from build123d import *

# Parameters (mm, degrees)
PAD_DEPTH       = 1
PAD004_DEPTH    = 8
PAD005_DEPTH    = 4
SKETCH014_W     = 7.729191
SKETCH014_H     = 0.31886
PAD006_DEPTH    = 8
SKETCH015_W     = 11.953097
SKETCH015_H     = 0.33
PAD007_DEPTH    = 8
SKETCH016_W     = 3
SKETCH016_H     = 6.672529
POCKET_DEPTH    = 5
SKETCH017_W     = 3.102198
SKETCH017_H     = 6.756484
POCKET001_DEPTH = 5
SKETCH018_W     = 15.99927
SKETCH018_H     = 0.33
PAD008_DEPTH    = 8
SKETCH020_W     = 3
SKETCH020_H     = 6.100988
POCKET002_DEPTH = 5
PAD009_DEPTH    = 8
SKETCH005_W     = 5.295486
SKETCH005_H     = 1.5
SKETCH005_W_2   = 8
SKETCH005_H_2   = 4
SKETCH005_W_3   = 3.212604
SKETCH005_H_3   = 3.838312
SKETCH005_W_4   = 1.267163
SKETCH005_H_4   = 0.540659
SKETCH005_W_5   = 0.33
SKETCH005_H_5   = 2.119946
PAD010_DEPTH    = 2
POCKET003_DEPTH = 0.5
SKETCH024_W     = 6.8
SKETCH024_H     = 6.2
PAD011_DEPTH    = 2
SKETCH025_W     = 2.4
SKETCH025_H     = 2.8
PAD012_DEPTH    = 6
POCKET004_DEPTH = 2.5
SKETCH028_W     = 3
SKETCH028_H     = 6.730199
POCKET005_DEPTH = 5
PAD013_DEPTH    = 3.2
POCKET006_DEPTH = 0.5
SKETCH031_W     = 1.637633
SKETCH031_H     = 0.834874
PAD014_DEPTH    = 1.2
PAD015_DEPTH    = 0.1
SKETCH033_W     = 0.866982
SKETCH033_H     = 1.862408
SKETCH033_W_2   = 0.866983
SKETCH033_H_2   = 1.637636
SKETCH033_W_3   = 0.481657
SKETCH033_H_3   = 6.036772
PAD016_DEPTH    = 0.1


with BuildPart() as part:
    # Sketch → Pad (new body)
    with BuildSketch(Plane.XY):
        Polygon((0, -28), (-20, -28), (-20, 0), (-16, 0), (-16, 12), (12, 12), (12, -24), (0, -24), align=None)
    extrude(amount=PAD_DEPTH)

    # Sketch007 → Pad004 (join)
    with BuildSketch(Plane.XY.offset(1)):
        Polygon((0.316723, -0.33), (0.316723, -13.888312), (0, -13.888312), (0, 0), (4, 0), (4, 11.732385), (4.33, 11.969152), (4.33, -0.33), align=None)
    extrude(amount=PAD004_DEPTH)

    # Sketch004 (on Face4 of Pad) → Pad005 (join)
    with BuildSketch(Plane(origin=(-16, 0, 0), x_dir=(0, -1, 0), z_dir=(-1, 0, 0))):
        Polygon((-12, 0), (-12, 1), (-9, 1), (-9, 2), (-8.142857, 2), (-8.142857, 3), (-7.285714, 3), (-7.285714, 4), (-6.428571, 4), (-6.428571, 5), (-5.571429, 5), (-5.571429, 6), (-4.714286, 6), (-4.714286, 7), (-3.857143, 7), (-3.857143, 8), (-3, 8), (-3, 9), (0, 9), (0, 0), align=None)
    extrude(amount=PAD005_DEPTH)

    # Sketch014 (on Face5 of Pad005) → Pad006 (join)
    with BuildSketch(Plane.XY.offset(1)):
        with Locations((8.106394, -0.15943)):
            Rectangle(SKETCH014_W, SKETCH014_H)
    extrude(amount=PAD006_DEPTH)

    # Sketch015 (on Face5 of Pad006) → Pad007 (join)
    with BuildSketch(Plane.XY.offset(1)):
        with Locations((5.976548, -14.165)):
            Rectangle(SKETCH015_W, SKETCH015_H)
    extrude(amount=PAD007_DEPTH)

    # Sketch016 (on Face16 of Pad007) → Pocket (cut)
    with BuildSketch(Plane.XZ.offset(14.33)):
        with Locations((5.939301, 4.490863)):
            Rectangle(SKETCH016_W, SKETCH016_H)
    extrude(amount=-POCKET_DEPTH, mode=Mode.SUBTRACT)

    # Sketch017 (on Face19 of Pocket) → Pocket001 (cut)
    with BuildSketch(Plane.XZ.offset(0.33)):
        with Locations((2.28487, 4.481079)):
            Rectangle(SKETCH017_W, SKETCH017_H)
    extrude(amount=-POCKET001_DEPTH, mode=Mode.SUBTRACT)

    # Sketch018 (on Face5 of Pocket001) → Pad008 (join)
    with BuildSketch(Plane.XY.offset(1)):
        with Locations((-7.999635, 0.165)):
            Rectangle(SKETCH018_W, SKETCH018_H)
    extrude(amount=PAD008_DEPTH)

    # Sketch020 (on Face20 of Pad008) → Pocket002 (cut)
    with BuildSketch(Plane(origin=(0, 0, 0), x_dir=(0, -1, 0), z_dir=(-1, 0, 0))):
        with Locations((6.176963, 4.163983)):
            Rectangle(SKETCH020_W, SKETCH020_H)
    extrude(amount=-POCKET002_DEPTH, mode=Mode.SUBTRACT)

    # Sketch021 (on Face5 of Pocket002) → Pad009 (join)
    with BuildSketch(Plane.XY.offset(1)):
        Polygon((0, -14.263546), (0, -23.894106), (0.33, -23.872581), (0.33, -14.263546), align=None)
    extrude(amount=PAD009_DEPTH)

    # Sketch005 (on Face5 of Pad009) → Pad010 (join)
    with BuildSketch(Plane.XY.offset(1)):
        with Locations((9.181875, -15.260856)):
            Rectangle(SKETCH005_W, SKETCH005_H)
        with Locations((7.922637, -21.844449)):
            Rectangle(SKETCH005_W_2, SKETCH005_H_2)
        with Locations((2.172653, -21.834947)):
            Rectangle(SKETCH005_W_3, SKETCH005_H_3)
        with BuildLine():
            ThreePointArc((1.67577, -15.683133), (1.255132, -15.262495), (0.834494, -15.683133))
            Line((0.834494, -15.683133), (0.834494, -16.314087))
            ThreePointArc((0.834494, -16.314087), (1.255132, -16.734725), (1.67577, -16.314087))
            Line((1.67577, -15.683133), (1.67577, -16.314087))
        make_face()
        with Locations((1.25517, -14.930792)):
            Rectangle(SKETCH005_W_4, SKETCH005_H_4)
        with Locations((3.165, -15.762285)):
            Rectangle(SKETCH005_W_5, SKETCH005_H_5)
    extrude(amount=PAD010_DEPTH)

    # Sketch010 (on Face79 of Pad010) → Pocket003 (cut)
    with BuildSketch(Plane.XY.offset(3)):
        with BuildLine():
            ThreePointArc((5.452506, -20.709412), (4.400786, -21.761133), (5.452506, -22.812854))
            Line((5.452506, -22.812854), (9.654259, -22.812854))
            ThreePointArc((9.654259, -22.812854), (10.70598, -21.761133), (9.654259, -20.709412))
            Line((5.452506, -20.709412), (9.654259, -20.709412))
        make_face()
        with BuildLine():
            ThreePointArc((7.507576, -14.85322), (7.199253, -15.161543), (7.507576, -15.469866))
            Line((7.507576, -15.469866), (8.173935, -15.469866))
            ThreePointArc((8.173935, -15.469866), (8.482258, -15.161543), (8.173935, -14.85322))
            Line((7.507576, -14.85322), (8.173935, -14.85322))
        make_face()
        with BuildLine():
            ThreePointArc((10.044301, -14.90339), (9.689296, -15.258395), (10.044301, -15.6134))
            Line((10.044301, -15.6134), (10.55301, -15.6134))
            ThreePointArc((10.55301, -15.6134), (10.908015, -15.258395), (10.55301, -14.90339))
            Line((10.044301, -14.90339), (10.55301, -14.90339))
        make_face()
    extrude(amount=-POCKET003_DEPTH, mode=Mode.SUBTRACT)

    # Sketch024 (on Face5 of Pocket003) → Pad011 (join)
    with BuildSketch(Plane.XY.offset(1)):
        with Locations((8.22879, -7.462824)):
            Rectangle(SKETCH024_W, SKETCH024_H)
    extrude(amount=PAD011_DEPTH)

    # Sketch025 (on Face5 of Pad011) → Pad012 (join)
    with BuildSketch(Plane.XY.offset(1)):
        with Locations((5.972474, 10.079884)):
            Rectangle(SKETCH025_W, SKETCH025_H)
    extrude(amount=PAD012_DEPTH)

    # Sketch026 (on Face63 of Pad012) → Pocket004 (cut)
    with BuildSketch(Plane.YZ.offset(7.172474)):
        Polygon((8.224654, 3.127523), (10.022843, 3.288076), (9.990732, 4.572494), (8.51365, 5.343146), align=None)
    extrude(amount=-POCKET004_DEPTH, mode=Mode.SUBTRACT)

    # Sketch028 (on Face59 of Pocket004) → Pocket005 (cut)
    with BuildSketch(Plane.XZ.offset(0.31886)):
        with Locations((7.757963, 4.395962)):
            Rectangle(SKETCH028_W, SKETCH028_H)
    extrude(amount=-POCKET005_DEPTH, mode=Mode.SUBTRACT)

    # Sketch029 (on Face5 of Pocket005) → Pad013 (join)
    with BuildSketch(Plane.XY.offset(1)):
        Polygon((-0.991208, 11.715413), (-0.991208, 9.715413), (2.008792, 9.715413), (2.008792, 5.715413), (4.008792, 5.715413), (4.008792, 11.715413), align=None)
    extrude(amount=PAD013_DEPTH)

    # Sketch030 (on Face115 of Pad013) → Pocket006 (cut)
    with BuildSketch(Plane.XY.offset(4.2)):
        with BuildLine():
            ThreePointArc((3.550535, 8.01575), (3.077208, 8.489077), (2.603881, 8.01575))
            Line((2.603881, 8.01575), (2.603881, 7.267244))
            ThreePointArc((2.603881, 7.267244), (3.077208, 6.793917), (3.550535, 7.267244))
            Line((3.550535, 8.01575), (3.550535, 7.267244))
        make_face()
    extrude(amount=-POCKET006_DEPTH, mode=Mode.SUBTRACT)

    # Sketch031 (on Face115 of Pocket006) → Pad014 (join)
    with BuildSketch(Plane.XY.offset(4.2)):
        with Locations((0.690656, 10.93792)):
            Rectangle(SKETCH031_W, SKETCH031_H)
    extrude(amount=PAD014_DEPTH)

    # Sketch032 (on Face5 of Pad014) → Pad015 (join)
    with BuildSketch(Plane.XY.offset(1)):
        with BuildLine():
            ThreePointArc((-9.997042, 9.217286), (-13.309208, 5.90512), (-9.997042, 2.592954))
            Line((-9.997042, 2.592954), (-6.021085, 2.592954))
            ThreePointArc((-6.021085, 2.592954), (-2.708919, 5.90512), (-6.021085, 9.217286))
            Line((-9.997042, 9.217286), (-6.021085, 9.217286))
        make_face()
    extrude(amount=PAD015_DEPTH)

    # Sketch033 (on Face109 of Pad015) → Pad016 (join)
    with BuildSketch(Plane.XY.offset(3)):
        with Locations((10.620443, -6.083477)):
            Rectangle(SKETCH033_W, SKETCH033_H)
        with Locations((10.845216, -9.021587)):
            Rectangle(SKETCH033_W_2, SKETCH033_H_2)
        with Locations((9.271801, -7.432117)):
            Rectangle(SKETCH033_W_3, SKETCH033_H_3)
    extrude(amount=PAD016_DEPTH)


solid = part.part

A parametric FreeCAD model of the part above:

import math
import FreeCAD as App
import Part
import Sketcher

V = App.Vector


def add_polygon(sketch, points):
    """Adds a closed chain of lines whose ends are joined by coincident constraints."""
    first, n = sketch.GeometryCount, len(points)
    for a, b in zip(points, points[1:] + points[:1]):
        sketch.addGeometry(Part.LineSegment(App.Vector(*a, 0), App.Vector(*b, 0)), False)
    for i in range(n):
        sketch.addConstraint(Sketcher.Constraint("Coincident", first + i, 2, first + (i + 1) % n, 1))

doc = App.newDocument("Part")
body = doc.addObject("PartDesign::Body", "Body")

sketch1 = doc.addObject("Sketcher::SketchObject", "Sketch")
body.addObject(sketch1)
sketch1.AttachmentSupport = (doc.XY_Plane, [""])
sketch1.MapMode = "FlatFace"
add_polygon(sketch1, [(-20, -28), (0, -28), (0, -24), (12, -24), (12, 12), (-16, 12), (-16, 0), (-20, 0)])
sketch1.addConstraint([
    Sketcher.Constraint("Horizontal", 0),
    Sketcher.Constraint("Vertical", 1),
    Sketcher.Constraint("Horizontal", 2),
    Sketcher.Constraint("Vertical", 3),
    Sketcher.Constraint("Horizontal", 4),
    Sketcher.Constraint("Vertical", 5),
    Sketcher.Constraint("Horizontal", 6),
    Sketcher.Constraint("Vertical", 7),
    Sketcher.Constraint("PointOnObject", 0, 2, -2),
    Sketcher.Constraint("PointOnObject", 5, 2, -1),
    Sketcher.Constraint("Equal", 6, 1),
    Sketcher.Constraint("Equal", 2, 5),
    Sketcher.Constraint("Equal", 4, 7),
    Sketcher.Constraint("DistanceX", 0, 1, 0, 2, 20.0),
    Sketcher.Constraint("DistanceX", 2, 1, 2, 2, 12.0),
    Sketcher.Constraint("DistanceX", 4, 2, 4, 1, 28.0),
])
pad1 = doc.addObject("PartDesign::Pad", "Pad")
body.addObject(pad1)
pad1.Profile = sketch1
pad1.Length = 1

sketch2 = doc.addObject("Sketcher::SketchObject", "Sketch001")
body.addObject(sketch2)
sketch2.AttachmentSupport = (doc.XY_Plane, [""])
sketch2.MapMode = "FlatFace"
sketch2.AttachmentOffset = App.Placement(V(0, 0, 1), App.Rotation())
add_polygon(sketch2, [(0.32, -13.89), (0.32, -0.33), (4.33, -0.33), (4.33, 11.97), (4, 11.73), (4, 0), (0, 0), (0, -13.89)])
sketch2.addConstraint([
    Sketcher.Constraint("Vertical", 0),
    Sketcher.Constraint("Horizontal", 1),
    Sketcher.Constraint("Vertical", 2),
    Sketcher.Constraint("Vertical", 4),
    Sketcher.Constraint("Horizontal", 5),
    Sketcher.Constraint("Vertical", 6),
    Sketcher.Constraint("Horizontal", 7),
    Sketcher.Constraint("Coincident", 5, 2, -1, 1),
    Sketcher.Constraint("DistanceX", 5, 2, 5, 1, 4.0),
    Sketcher.Constraint("DistanceY", 0, 2, -1, 1, 0.33),
    Sketcher.Constraint("DistanceX", -1, 1, 1, 2, 4.33),
    Sketcher.Constraint("Distance", 3, 0.406151),
    Sketcher.Constraint("DistanceX", 1, 1, 1, 2, 4.013277),
    Sketcher.Constraint("DistanceY", 0, 1, 0, 2, 13.558312),
    Sketcher.Constraint("DistanceY", 2, 1, 2, 2, 12.299152),
])
pad2 = doc.addObject("PartDesign::Pad", "Pad001")
body.addObject(pad2)
pad2.Profile = sketch2
pad2.Length = 8

sketch3 = doc.addObject("Sketcher::SketchObject", "Sketch002")
body.addObject(sketch3)
sketch3.AttachmentSupport = (doc.YZ_Plane, [""])
sketch3.MapMode = "FlatFace"
sketch3.AttachmentOffset = App.Placement(V(0, 0, -16), App.Rotation())
add_polygon(sketch3, [(12, 1), (12, 0), (0, 0), (0, 9), (3, 9), (3, 8), (3.9, 8), (3.9, 7), (4.7, 7), (4.7, 6), (5.6, 6), (5.6, 5), (6.4, 5), (6.4, 4), (7.3, 4), (7.3, 3), (8.1, 3), (8.1, 2), (9, 2), (9, 1)])
sketch3.addConstraint([
    Sketcher.Constraint("Vertical", 0),
    Sketcher.Constraint("Horizontal", 1),
    Sketcher.Constraint("Vertical", 2),
    Sketcher.Constraint("Horizontal", 3),
    Sketcher.Constraint("Vertical", 4),
    Sketcher.Constraint("Horizontal", 5),
    Sketcher.Constraint("Vertical", 6),
    Sketcher.Constraint("Horizontal", 7),
    Sketcher.Constraint("Vertical", 8),
    Sketcher.Constraint("Horizontal", 9),
    Sketcher.Constraint("Vertical", 10),
    Sketcher.Constraint("Horizontal", 11),
    Sketcher.Constraint("Vertical", 12),
    Sketcher.Constraint("Horizontal", 13),
    Sketcher.Constraint("Vertical", 14),
    Sketcher.Constraint("Horizontal", 15),
    Sketcher.Constraint("Vertical", 16),
    Sketcher.Constraint("Horizontal", 17),
    Sketcher.Constraint("Vertical", 18),
    Sketcher.Constraint("Horizontal", 19),
    Sketcher.Constraint("Coincident", 1, 2, -1, 1),
    Sketcher.Constraint("Equal", 5, 7),
    Sketcher.Constraint("Equal", 7, 9),
    Sketcher.Constraint("Equal", 9, 11),
    Sketcher.Constraint("Equal", 11, 13),
    Sketcher.Constraint("Equal", 13, 15),
    Sketcher.Constraint("Equal", 15, 17),
    Sketcher.Constraint("Equal", 3, 19),
    Sketcher.Constraint("Equal", 0, 4),
    Sketcher.Constraint("Equal", 4, 6),
    Sketcher.Constraint("Equal", 6, 8),
    Sketcher.Constraint("Equal", 8, 10),
    Sketcher.Constraint("Equal", 10, 12),
    Sketcher.Constraint("Equal", 12, 14),
    Sketcher.Constraint("Equal", 14, 16),
    Sketcher.Constraint("Equal", 16, 18),
    Sketcher.Constraint("DistanceX", 1, 2, 1, 1, 12.0),
    Sketcher.Constraint("DistanceX", 3, 1, 3, 2, 3.0),
    Sketcher.Constraint("DistanceY", 0, 2, 0, 1, 1.0),
])
pad3 = doc.addObject("PartDesign::Pad", "Pad002")
body.addObject(pad3)
pad3.Profile = sketch3
pad3.Length = 4
pad3.Reversed = True

sketch4 = doc.addObject("Sketcher::SketchObject", "Sketch003")
body.addObject(sketch4)
sketch4.AttachmentSupport = (doc.XY_Plane, [""])
sketch4.MapMode = "FlatFace"
sketch4.AttachmentOffset = App.Placement(V(0, 0, 1), App.Rotation())
add_polygon(sketch4, [(4.24, 0), (4.24, -0.32), (11.97, -0.32), (11.97, 0)])
sketch4.addConstraint([
    Sketcher.Constraint("Vertical", 0),
    Sketcher.Constraint("Horizontal", 1),
    Sketcher.Constraint("Vertical", 2),
    Sketcher.Constraint("Horizontal", 3),
    Sketcher.Constraint("PointOnObject", 2, 2, -1),
    Sketcher.Constraint("DistanceX", 1, 1, 1, 2, 7.729191),
    Sketcher.Constraint("DistanceY", 0, 2, 0, 1, 0.31886),
    Sketcher.Constraint("DistanceX", -1, 1, 0, 2, 4.241798),
])
pad4 = doc.addObject("PartDesign::Pad", "Pad003")
body.addObject(pad4)
pad4.Profile = sketch4
pad4.Length = 8

sketch5 = doc.addObject("Sketcher::SketchObject", "Sketch004")
body.addObject(sketch5)
sketch5.AttachmentSupport = (doc.XY_Plane, [""])
sketch5.MapMode = "FlatFace"
sketch5.AttachmentOffset = App.Placement(V(0, 0, 1), App.Rotation())
add_polygon(sketch5, [(0, -14), (0, -14.33), (11.95, -14.33), (11.95, -14)])
sketch5.addConstraint([
    Sketcher.Constraint("Vertical", 0),
    Sketcher.Constraint("Horizontal", 1),
    Sketcher.Constraint("Vertical", 2),
    Sketcher.Constraint("Horizontal", 3),
    Sketcher.Constraint("PointOnObject", 0, 2, -2),
    Sketcher.Constraint("DistanceY", 2, 2, -1, 1, 14.0),
    Sketcher.Constraint("DistanceY", 0, 2, 0, 1, 0.33),
    Sketcher.Constraint("DistanceX", 1, 1, 1, 2, 11.953097),
])
pad5 = doc.addObject("PartDesign::Pad", "Pad004")
body.addObject(pad5)
pad5.Profile = sketch5
pad5.Length = 8

sketch6 = doc.addObject("Sketcher::SketchObject", "Sketch005")
body.addObject(sketch6)
sketch6.AttachmentSupport = (doc.XZ_Plane, [""])
sketch6.MapMode = "FlatFace"
sketch6.AttachmentOffset = App.Placement(V(0, 0, 14.33), App.Rotation())
add_polygon(sketch6, [(4.4, 7.8), (4.4, 1.2), (7.4, 1.2), (7.4, 7.8)])
sketch6.addConstraint([
    Sketcher.Constraint("Vertical", 0),
    Sketcher.Constraint("Horizontal", 1),
    Sketcher.Constraint("Vertical", 2),
    Sketcher.Constraint("Horizontal", 3),
    Sketcher.Constraint("DistanceX", 1, 1, 1, 2, 3.0),
    Sketcher.Constraint("DistanceY", 0, 2, 0, 1, 6.672529),
    Sketcher.Constraint("DistanceX", -1, 1, 0, 2, 4.439301),
    Sketcher.Constraint("DistanceY", -1, 1, 0, 2, 1.154599),
])
pocket1 = doc.addObject("PartDesign::Pocket", "Pocket")
body.addObject(pocket1)
pocket1.Profile = sketch6
pocket1.Length = 5

sketch7 = doc.addObject("Sketcher::SketchObject", "Sketch006")
body.addObject(sketch7)
sketch7.AttachmentSupport = (doc.XZ_Plane, [""])
sketch7.MapMode = "FlatFace"
sketch7.AttachmentOffset = App.Placement(V(0, 0, 0.33), App.Rotation())
add_polygon(sketch7, [(0.7, 7.9), (0.7, 1.1), (3.8, 1.1), (3.8, 7.9)])
sketch7.addConstraint([
    Sketcher.Constraint("Vertical", 0),
    Sketcher.Constraint("Horizontal", 1),
    Sketcher.Constraint("Vertical", 2),
    Sketcher.Constraint("Horizontal", 3),
    Sketcher.Constraint("DistanceX", 1, 1, 1, 2, 3.102198),
    Sketcher.Constraint("DistanceY", 0, 2, 0, 1, 6.756484),
    Sketcher.Constraint("DistanceX", -1, 1, 0, 2, 0.733771),
    Sketcher.Constraint("DistanceY", -1, 1, 2, 2, 7.859321),
])
pocket2 = doc.addObject("PartDesign::Pocket", "Pocket001")
body.addObject(pocket2)
pocket2.Profile = sketch7
pocket2.Length = 5

sketch8 = doc.addObject("Sketcher::SketchObject", "Sketch007")
body.addObject(sketch8)
sketch8.AttachmentSupport = (doc.XY_Plane, [""])
sketch8.MapMode = "FlatFace"
sketch8.AttachmentOffset = App.Placement(V(0, 0, 1), App.Rotation())
add_polygon(sketch8, [(-16, 0.33), (-16, 0), (0, 0), (0, 0.33)])
sketch8.addConstraint([
    Sketcher.Constraint("Vertical", 0),
    Sketcher.Constraint("Horizontal", 1),
    Sketcher.Constraint("Vertical", 2),
    Sketcher.Constraint("Horizontal", 3),
    Sketcher.Constraint("Coincident", 1, 2, -1, 1),
    Sketcher.Constraint("DistanceY", 0, 2, 0, 1, 0.33),
    Sketcher.Constraint("DistanceX", 1, 1, 1, 2, 15.99927),
])
pad6 = doc.addObject("PartDesign::Pad", "Pad005")
body.addObject(pad6)
pad6.Profile = sketch8
pad6.Length = 8

sketch9 = doc.addObject("Sketcher::SketchObject", "Sketch008")
body.addObject(sketch9)
sketch9.AttachmentSupport = (doc.YZ_Plane, [""])
sketch9.MapMode = "FlatFace"
add_polygon(sketch9, [(-4.7, 7.2), (-4.7, 1.1), (-7.7, 1.1), (-7.7, 7.2)])
sketch9.addConstraint([
    Sketcher.Constraint("Vertical", 0),
    Sketcher.Constraint("Horizontal", 1),
    Sketcher.Constraint("Vertical", 2),
    Sketcher.Constraint("Horizontal", 3),
    Sketcher.Constraint("DistanceX", 1, 2, 1, 1, 3.0),
    Sketcher.Constraint("DistanceY", 0, 2, 0, 1, 6.100988),
    Sketcher.Constraint("DistanceY", -1, 1, 0, 2, 1.113489),
    Sketcher.Constraint("DistanceX", 0, 2, -1, 1, 4.676963),
])
pocket3 = doc.addObject("PartDesign::Pocket", "Pocket002")
body.addObject(pocket3)
pocket3.Profile = sketch9
pocket3.Length = 5
pocket3.Reversed = True

sketch10 = doc.addObject("Sketcher::SketchObject", "Sketch009")
body.addObject(sketch10)
sketch10.AttachmentSupport = (doc.XY_Plane, [""])
sketch10.MapMode = "FlatFace"
sketch10.AttachmentOffset = App.Placement(V(0, 0, 1), App.Rotation())
add_polygon(sketch10, [(0, -14.26), (0, -23.89), (0.33, -23.87), (0.33, -14.26)])
sketch10.addConstraint([
    Sketcher.Constraint("Vertical", 0),
    Sketcher.Constraint("Vertical", 2),
    Sketcher.Constraint("Horizontal", 3),
    Sketcher.Constraint("PointOnObject", 0, 2, -2),
    Sketcher.Constraint("DistanceX", 3, 2, 3, 1, 0.33),
    Sketcher.Constraint("Distance", 1, 0.330701),
    Sketcher.Constraint("DistanceY", 0, 2, 0, 1, 9.63056),
    Sketcher.Constraint("DistanceY", 1, 2, -1, 1, 23.872581),
])
pad7 = doc.addObject("PartDesign::Pad", "Pad006")
body.addObject(pad7)
pad7.Profile = sketch10
pad7.Length = 8

sketch11 = doc.addObject("Sketcher::SketchObject", "Sketch010")
body.addObject(sketch11)
sketch11.AttachmentSupport = (doc.XY_Plane, [""])
sketch11.MapMode = "FlatFace"
sketch11.AttachmentOffset = App.Placement(V(0, 0, 1), App.Rotation())
add_polygon(sketch11, [(6.53, -14.51), (6.53, -16.01), (11.83, -16.01), (11.83, -14.51)])
add_polygon(sketch11, [(3.92, -19.84), (3.92, -23.84), (11.92, -23.84), (11.92, -19.84)])
add_polygon(sketch11, [(0.57, -19.92), (0.57, -23.75), (3.78, -23.75), (3.78, -19.92)])
sketch11.addGeometry(Part.ArcOfCircle(Part.Circle(V(1.26, -15.68, 0), V(0, 0, 1), 0.42), math.radians(0), math.radians(180)), False)
sketch11.addGeometry(Part.LineSegment(V(0.83, -15.68, 0), V(0.83, -16.31, 0)), False)
sketch11.addGeometry(Part.ArcOfCircle(Part.Circle(V(1.26, -16.31, 0), V(0, 0, 1), 0.42), math.radians(180), math.radians(360)), False)
sketch11.addGeometry(Part.LineSegment(V(1.68, -16.31, 0), V(1.68, -15.68, 0)), False)
add_polygon(sketch11, [(0.62, -14.66), (0.62, -15.2), (1.89, -15.2), (1.89, -14.66)])
add_polygon(sketch11, [(3, -14.7), (3, -16.82), (3.33, -16.82), (3.33, -14.7)])
sketch11.addConstraint([
    Sketcher.Constraint("Tangent", 12, 2, 13, 1),
    Sketcher.Constraint("Tangent", 13, 2, 14, 1),
    Sketcher.Constraint("Tangent", 14, 2, 15, 1),
    Sketcher.Constraint("Tangent", 15, 2, 12, 1),
    Sketcher.Constraint("Vertical", 0),
    Sketcher.Constraint("Horizontal", 1),
    Sketcher.Constraint("Vertical", 2),
    Sketcher.Constraint("Horizontal", 3),
    Sketcher.Constraint("Vertical", 4),
    Sketcher.Constraint("Horizontal", 5),
    Sketcher.Constraint("Vertical", 6),
    Sketcher.Constraint("Horizontal", 7),
    Sketcher.Constraint("Vertical", 8),
    Sketcher.Constraint("Horizontal", 9),
    Sketcher.Constraint("Vertical", 10),
    Sketcher.Constraint("Horizontal", 11),
    Sketcher.Constraint("Vertical", 13),
    Sketcher.Constraint("Vertical", 15),
    Sketcher.Constraint("Vertical", 16),
    Sketcher.Constraint("Horizontal", 17),
    Sketcher.Constraint("Vertical", 18),
    Sketcher.Constraint("Horizontal", 19),
    Sketcher.Constraint("Vertical", 20),
    Sketcher.Constraint("Horizontal", 21),
    Sketcher.Constraint("Vertical", 22),
    Sketcher.Constraint("Horizontal", 23),
    Sketcher.Constraint("DistanceX", 5, 1, 5, 2, 8.0),
    Sketcher.Constraint("DistanceY", 4, 2, 4, 1, 4.0),
    Sketcher.Constraint("DistanceY", 0, 2, 0, 1, 1.5),
    Sketcher.Constraint("DistanceX", -1, 1, 20, 2, 3.0),
    Sketcher.Constraint("DistanceX", 21, 1, 21, 2, 0.33),
    Sketcher.Constraint("Radius", 12, 0.420638),
    Sketcher.Constraint("DistanceX", 14, 3, 0, 2, 5.279),
    Sketcher.Constraint("DistanceY", 16, 2, 16, 1, 0.540659),
    Sketcher.Constraint("DistanceX", 1, 1, 1, 2, 5.295486),
    Sketcher.Constraint("DistanceX", 9, 1, 9, 2, 3.212604),
    Sketcher.Constraint("DistanceX", 17, 1, 17, 2, 1.267163),
    Sketcher.Constraint("DistanceY", 8, 2, 8, 1, 3.838312),
    Sketcher.Constraint("DistanceY", 13, 2, 13, 1, 0.630954),
    Sketcher.Constraint("DistanceY", 20, 2, 20, 1, 2.119946),
    Sketcher.Constraint("DistanceX", -1, 1, 12, 3, 1.255132),
    Sketcher.Constraint("DistanceY", 4, 2, -1, 1, 23.844449),
    Sketcher.Constraint("DistanceX", -1, 1, 8, 2, 0.566351),
    Sketcher.Constraint("DistanceY", 10, 2, -1, 1, 19.915791),
    Sketcher.Constraint("DistanceX", -1, 1, 16, 2, 0.621588),
    Sketcher.Constraint("DistanceY", 16, 2, -1, 1, 15.201121),
    Sketcher.Constraint("DistanceY", 20, 2, -1, 1, 16.822258),
    Sketcher.Constraint("DistanceY", 14, 3, 0, 2, 0.303231),
    Sketcher.Constraint("DistanceX", 4, 2, 1, 2, 7.906981),
    Sketcher.Constraint("DistanceY", 8, 2, 12, 3, 8.07097),
])
pad8 = doc.addObject("PartDesign::Pad", "Pad007")
body.addObject(pad8)
pad8.Profile = sketch11
pad8.Length = 2

sketch12 = doc.addObject("Sketcher::SketchObject", "Sketch011")
body.addObject(sketch12)
sketch12.AttachmentSupport = (doc.XY_Plane, [""])
sketch12.MapMode = "FlatFace"
sketch12.AttachmentOffset = App.Placement(V(0, 0, 3), App.Rotation())
sketch12.addGeometry([
    Part.ArcOfCircle(Part.Circle(V(5.45, -21.76, 0), V(0, 0, 1), 1.05), math.radians(90), math.radians(270)),
    Part.LineSegment(V(5.45, -22.81, 0), V(9.65, -22.81, 0)),
    Part.ArcOfCircle(Part.Circle(V(9.65, -21.76, 0), V(0, 0, 1), 1.05), math.radians(-90), math.radians(90)),
    Part.LineSegment(V(9.65, -20.71, 0), V(5.45, -20.71, 0)),
    Part.ArcOfCircle(Part.Circle(V(7.51, -15.16, 0), V(0, 0, 1), 0.31), math.radians(90), math.radians(270)),
    Part.LineSegment(V(7.51, -15.47, 0), V(8.17, -15.47, 0)),
    Part.ArcOfCircle(Part.Circle(V(8.17, -15.16, 0), V(0, 0, 1), 0.31), math.radians(-90), math.radians(90)),
    Part.LineSegment(V(8.17, -14.85, 0), V(7.51, -14.85, 0)),
    Part.ArcOfCircle(Part.Circle(V(10.04, -15.26, 0), V(0, 0, 1), 0.36), math.radians(90), math.radians(270)),
    Part.LineSegment(V(10.04, -15.61, 0), V(10.55, -15.61, 0)),
    Part.ArcOfCircle(Part.Circle(V(10.55, -15.26, 0), V(0, 0, 1), 0.36), math.radians(-90), math.radians(90)),
    Part.LineSegment(V(10.55, -14.9, 0), V(10.04, -14.9, 0)),
], False)
sketch12.addConstraint([
    Sketcher.Constraint("Tangent", 0, 2, 1, 1),
    Sketcher.Constraint("Tangent", 1, 2, 2, 1),
    Sketcher.Constraint("Tangent", 2, 2, 3, 1),
    Sketcher.Constraint("Tangent", 3, 2, 0, 1),
    Sketcher.Constraint("Tangent", 4, 2, 5, 1),
    Sketcher.Constraint("Tangent", 5, 2, 6, 1),
    Sketcher.Constraint("Tangent", 6, 2, 7, 1),
    Sketcher.Constraint("Tangent", 7, 2, 4, 1),
    Sketcher.Constraint("Tangent", 8, 2, 9, 1),
    Sketcher.Constraint("Tangent", 9, 2, 10, 1),
    Sketcher.Constraint("Tangent", 10, 2, 11, 1),
    Sketcher.Constraint("Tangent", 11, 2, 8, 1),
    Sketcher.Constraint("Horizontal", 1),
    Sketcher.Constraint("Horizontal", 3),
    Sketcher.Constraint("Horizontal", 5),
    Sketcher.Constraint("Horizontal", 7),
    Sketcher.Constraint("Horizontal", 9),
    Sketcher.Constraint("Horizontal", 11),
    Sketcher.Constraint("Radius", 0, 1.051721),
    Sketcher.Constraint("Radius", 4, 0.308323),
    Sketcher.Constraint("Radius", 8, 0.355005),
    Sketcher.Constraint("DistanceX", 5, 1, 5, 2, 0.666359),
    Sketcher.Constraint("DistanceX", 9, 1, 9, 2, 0.508709),
    Sketcher.Constraint("DistanceX", -1, 1, 8, 3, 10.044301),
    Sketcher.Constraint("DistanceY", 8, 2, -1, 1, 15.6134),
    Sketcher.Constraint("DistanceX", 1, 1, 1, 2, 4.201753),
    Sketcher.Constraint("DistanceX", -1, 1, 2, 3, 9.654259),
    Sketcher.Constraint("DistanceY", 6, 2, -1, 1, 14.85322),
    Sketcher.Constraint("DistanceX", 0, 3, 4, 3, 2.055069),
    Sketcher.Constraint("DistanceY", 0, 3, 4, 3, 6.59959),
])
pocket4 = doc.addObject("PartDesign::Pocket", "Pocket003")
body.addObject(pocket4)
pocket4.Profile = sketch12
pocket4.Length = 0.5

sketch13 = doc.addObject("Sketcher::SketchObject", "Sketch012")
body.addObject(sketch13)
sketch13.AttachmentSupport = (doc.XY_Plane, [""])
sketch13.MapMode = "FlatFace"
sketch13.AttachmentOffset = App.Placement(V(0, 0, 1), App.Rotation())
add_polygon(sketch13, [(5, -4), (5, -11), (12, -11), (12, -4)])
sketch13.addConstraint([
    Sketcher.Constraint("Vertical", 0),
    Sketcher.Constraint("Horizontal", 1),
    Sketcher.Constraint("Vertical", 2),
    Sketcher.Constraint("Horizontal", 3),
    Sketcher.Constraint("DistanceX", 1, 1, 1, 2, 6.8),
    Sketcher.Constraint("DistanceY", 0, 2, 0, 1, 6.2),
    Sketcher.Constraint("DistanceX", -1, 1, 0, 2, 4.82879),
    Sketcher.Constraint("DistanceY", 0, 2, -1, 1, 10.562824),
])
pad9 = doc.addObject("PartDesign::Pad", "Pad008")
body.addObject(pad9)
pad9.Profile = sketch13
pad9.Length = 2

sketch14 = doc.addObject("Sketcher::SketchObject", "Sketch013")
body.addObject(sketch14)
sketch14.AttachmentSupport = (doc.XY_Plane, [""])
sketch14.MapMode = "FlatFace"
sketch14.AttachmentOffset = App.Placement(V(0, 0, 1), App.Rotation())
add_polygon(sketch14, [(4.8, 11.5), (4.8, 8.7), (7.2, 8.7), (7.2, 11.5)])
sketch14.addConstraint([
    Sketcher.Constraint("Vertical", 0),
    Sketcher.Constraint("Horizontal", 1),
    Sketcher.Constraint("Vertical", 2),
    Sketcher.Constraint("Horizontal", 3),
    Sketcher.Constraint("DistanceX", 1, 1, 1, 2, 2.4),
    Sketcher.Constraint("DistanceY", 0, 2, 0, 1, 2.8),
    Sketcher.Constraint("DistanceX", -1, 1, 0, 2, 4.772474),
    Sketcher.Constraint("DistanceY", -1, 1, 0, 2, 8.679884),
])
pad10 = doc.addObject("PartDesign::Pad", "Pad009")
body.addObject(pad10)
pad10.Profile = sketch14
pad10.Length = 6

sketch15 = doc.addObject("Sketcher::SketchObject", "Sketch014")
body.addObject(sketch15)
sketch15.AttachmentSupport = (doc.YZ_Plane, [""])
sketch15.MapMode = "FlatFace"
sketch15.AttachmentOffset = App.Placement(V(0, 0, 7.172474), App.Rotation())
add_polygon(sketch15, [(8.2, 3.1), (10, 3.3), (10, 4.6), (8.5, 5.3)])
sketch15.addConstraint([
    Sketcher.Constraint("Distance", 1, 1.284819),
    Sketcher.Constraint("Distance", 3, 2.234391),
    Sketcher.Constraint("DistanceX", -1, 1, 2, 2, 8.51365),
    Sketcher.Constraint("DistanceX", 1, 2, 0, 2, 0.032111),
    Sketcher.Constraint("DistanceX", 2, 2, 1, 2, 1.477082),
    Sketcher.Constraint("DistanceY", 0, 2, 2, 2, 2.05507),
    Sketcher.Constraint("DistanceX", 3, 2, 0, 2, 1.798189),
    Sketcher.Constraint("DistanceY", -1, 1, 0, 2, 3.288076),
])
pocket5 = doc.addObject("PartDesign::Pocket", "Pocket004")
body.addObject(pocket5)
pocket5.Profile = sketch15
pocket5.Length = 2.5

sketch16 = doc.addObject("Sketcher::SketchObject", "Sketch015")
body.addObject(sketch16)
sketch16.AttachmentSupport = (doc.XZ_Plane, [""])
sketch16.MapMode = "FlatFace"
sketch16.AttachmentOffset = App.Placement(V(0, 0, 0.31886), App.Rotation())
add_polygon(sketch16, [(6.3, 7.8), (6.3, 1), (9.3, 1), (9.3, 7.8)])
sketch16.addConstraint([
    Sketcher.Constraint("Vertical", 0),
    Sketcher.Constraint("Horizontal", 1),
    Sketcher.Constraint("Vertical", 2),
    Sketcher.Constraint("Horizontal", 3),
    Sketcher.Constraint("DistanceX", 1, 1, 1, 2, 3.0),
    Sketcher.Constraint("DistanceY", 0, 2, 0, 1, 6.730199),
    Sketcher.Constraint("DistanceY", -1, 1, 2, 2, 7.761062),
    Sketcher.Constraint("DistanceX", -1, 1, 0, 2, 6.257963),
])
pocket6 = doc.addObject("PartDesign::Pocket", "Pocket005")
body.addObject(pocket6)
pocket6.Profile = sketch16
pocket6.Length = 5

sketch17 = doc.addObject("Sketcher::SketchObject", "Sketch016")
body.addObject(sketch17)
sketch17.AttachmentSupport = (doc.XY_Plane, [""])
sketch17.MapMode = "FlatFace"
sketch17.AttachmentOffset = App.Placement(V(0, 0, 1), App.Rotation())
add_polygon(sketch17, [(-1, 11.7), (-1, 9.7), (2, 9.7), (2, 5.7), (4, 5.7), (4, 11.7)])
sketch17.addConstraint([
    Sketcher.Constraint("Vertical", 0),
    Sketcher.Constraint("Horizontal", 1),
    Sketcher.Constraint("Vertical", 2),
    Sketcher.Constraint("Horizontal", 3),
    Sketcher.Constraint("Vertical", 4),
    Sketcher.Constraint("Horizontal", 5),
    Sketcher.Constraint("Equal", 3, 0),
    Sketcher.Constraint("DistanceX", 1, 1, 1, 2, 3.0),
    Sketcher.Constraint("DistanceX", 3, 1, 3, 2, 2.0),
    Sketcher.Constraint("DistanceY", 2, 2, 2, 1, 4.0),
    Sketcher.Constraint("DistanceX", -1, 1, 3, 2, 4.008792),
    Sketcher.Constraint("DistanceY", -1, 1, 0, 2, 9.715413),
])
pad11 = doc.addObject("PartDesign::Pad", "Pad010")
body.addObject(pad11)
pad11.Profile = sketch17
pad11.Length = 3.2

sketch18 = doc.addObject("Sketcher::SketchObject", "Sketch017")
body.addObject(sketch18)
sketch18.AttachmentSupport = (doc.XY_Plane, [""])
sketch18.MapMode = "FlatFace"
sketch18.AttachmentOffset = App.Placement(V(0, 0, 4.2), App.Rotation())
sketch18.addGeometry([
    Part.ArcOfCircle(Part.Circle(V(3.08, 8.02, 0), V(0, 0, 1), 0.47), math.radians(0), math.radians(180)),
    Part.LineSegment(V(2.6, 8.02, 0), V(2.6, 7.27, 0)),
    Part.ArcOfCircle(Part.Circle(V(3.08, 7.27, 0), V(0, 0, 1), 0.47), math.radians(180), math.radians(360)),
    Part.LineSegment(V(3.55, 7.27, 0), V(3.55, 8.02, 0)),
], False)
sketch18.addConstraint([
    Sketcher.Constraint("Tangent", 0, 2, 1, 1),
    Sketcher.Constraint("Tangent", 1, 2, 2, 1),
    Sketcher.Constraint("Tangent", 2, 2, 3, 1),
    Sketcher.Constraint("Tangent", 3, 2, 0, 1),
    Sketcher.Constraint("Vertical", 1),
    Sketcher.Constraint("Vertical", 3),
    Sketcher.Constraint("Radius", 0, 0.473327),
    Sketcher.Constraint("DistanceY", 1, 2, 1, 1, 0.748506),
    Sketcher.Constraint("DistanceX", -1, 1, 0, 3, 3.077208),
    Sketcher.Constraint("DistanceY", -1, 1, 0, 3, 8.01575),
])
pocket7 = doc.addObject("PartDesign::Pocket", "Pocket006")
body.addObject(pocket7)
pocket7.Profile = sketch18
pocket7.Length = 0.5

sketch19 = doc.addObject("Sketcher::SketchObject", "Sketch018")
body.addObject(sketch19)
sketch19.AttachmentSupport = (doc.XY_Plane, [""])
sketch19.MapMode = "FlatFace"
sketch19.AttachmentOffset = App.Placement(V(0, 0, 4.2), App.Rotation())
add_polygon(sketch19, [(-0.1, 11.4), (-0.1, 10.5), (1.5, 10.5), (1.5, 11.4)])
sketch19.addConstraint([
    Sketcher.Constraint("Vertical", 0),
    Sketcher.Constraint("Horizontal", 1),
    Sketcher.Constraint("Vertical", 2),
    Sketcher.Constraint("Horizontal", 3),
    Sketcher.Constraint("DistanceX", 1, 1, 1, 2, 1.637633),
    Sketcher.Constraint("DistanceY", 0, 2, 0, 1, 0.834874),
    Sketcher.Constraint("DistanceX", 0, 2, -1, 1, 0.128161),
    Sketcher.Constraint("DistanceY", -1, 1, 0, 2, 10.520483),
])
pad12 = doc.addObject("PartDesign::Pad", "Pad011")
body.addObject(pad12)
pad12.Profile = sketch19
pad12.Length = 1.2

sketch20 = doc.addObject("Sketcher::SketchObject", "Sketch019")
body.addObject(sketch20)
sketch20.AttachmentSupport = (doc.XY_Plane, [""])
sketch20.MapMode = "FlatFace"
sketch20.AttachmentOffset = App.Placement(V(0, 0, 1), App.Rotation())
sketch20.addGeometry([
    Part.ArcOfCircle(Part.Circle(V(-10, 5.9, 0), V(0, 0, 1), 3.3), math.radians(90), math.radians(270)),
    Part.LineSegment(V(-10, 2.6, 0), V(-6, 2.6, 0)),
    Part.ArcOfCircle(Part.Circle(V(-6, 5.9, 0), V(0, 0, 1), 3.3), math.radians(-90), math.radians(90)),
    Part.LineSegment(V(-6, 9.2, 0), V(-10, 9.2, 0)),
], False)
sketch20.addConstraint([
    Sketcher.Constraint("Tangent", 0, 2, 1, 1),
    Sketcher.Constraint("Tangent", 1, 2, 2, 1),
    Sketcher.Constraint("Tangent", 2, 2, 3, 1),
    Sketcher.Constraint("Tangent", 3, 2, 0, 1),
    Sketcher.Constraint("Horizontal", 1),
    Sketcher.Constraint("Horizontal", 3),
    Sketcher.Constraint("Radius", 0, 3.312166),
    Sketcher.Constraint("DistanceX", 1, 1, 1, 2, 3.975957),
    Sketcher.Constraint("DistanceY", -1, 1, 0, 3, 5.90512),
    Sketcher.Constraint("DistanceX", 0, 3, -1, 1, 9.997042),
])
pad13 = doc.addObject("PartDesign::Pad", "Pad012")
body.addObject(pad13)
pad13.Profile = sketch20
pad13.Length = 0.1

sketch21 = doc.addObject("Sketcher::SketchObject", "Sketch020")
body.addObject(sketch21)
sketch21.AttachmentSupport = (doc.XY_Plane, [""])
sketch21.MapMode = "FlatFace"
sketch21.AttachmentOffset = App.Placement(V(0, 0, 3), App.Rotation())
add_polygon(sketch21, [(10.19, -5.15), (10.19, -7.01), (11.05, -7.01), (11.05, -5.15)])
add_polygon(sketch21, [(10.41, -8.2), (10.41, -9.84), (11.28, -9.84), (11.28, -8.2)])
add_polygon(sketch21, [(9.03, -4.41), (9.03, -10.45), (9.51, -10.45), (9.51, -4.41)])
sketch21.addConstraint([
    Sketcher.Constraint("Vertical", 0),
    Sketcher.Constraint("Horizontal", 1),
    Sketcher.Constraint("Vertical", 2),
    Sketcher.Constraint("Horizontal", 3),
    Sketcher.Constraint("Vertical", 4),
    Sketcher.Constraint("Horizontal", 5),
    Sketcher.Constraint("Vertical", 6),
    Sketcher.Constraint("Horizontal", 7),
    Sketcher.Constraint("Vertical", 8),
    Sketcher.Constraint("Horizontal", 9),
    Sketcher.Constraint("Vertical", 10),
    Sketcher.Constraint("Horizontal", 11),
    Sketcher.Constraint("Equal", 3, 5),
    Sketcher.Constraint("DistanceY", 0, 2, 0, 1, 1.862408),
    Sketcher.Constraint("DistanceY", 8, 2, 8, 1, 6.036772),
    Sketcher.Constraint("DistanceX", 1, 1, 1, 2, 0.866982),
    Sketcher.Constraint("DistanceX", 9, 1, 9, 2, 0.481657),
    Sketcher.Constraint("DistanceY", 4, 2, 4, 1, 1.637636),
    Sketcher.Constraint("DistanceY", 0, 2, -1, 1, 7.014681),
    Sketcher.Constraint("DistanceY", 6, 2, -1, 1, 8.202769),
    Sketcher.Constraint("DistanceX", -1, 1, 9, 2, 9.512629),
    Sketcher.Constraint("DistanceY", 10, 2, -1, 1, 4.413731),
    Sketcher.Constraint("DistanceX", 4, 2, 1, 2, 0.642209),
    Sketcher.Constraint("DistanceX", 8, 2, 4, 2, 1.380752),
])
pad14 = doc.addObject("PartDesign::Pad", "Pad013")
body.addObject(pad14)
pad14.Profile = sketch21
pad14.Length = 0.1

doc.recompute()
